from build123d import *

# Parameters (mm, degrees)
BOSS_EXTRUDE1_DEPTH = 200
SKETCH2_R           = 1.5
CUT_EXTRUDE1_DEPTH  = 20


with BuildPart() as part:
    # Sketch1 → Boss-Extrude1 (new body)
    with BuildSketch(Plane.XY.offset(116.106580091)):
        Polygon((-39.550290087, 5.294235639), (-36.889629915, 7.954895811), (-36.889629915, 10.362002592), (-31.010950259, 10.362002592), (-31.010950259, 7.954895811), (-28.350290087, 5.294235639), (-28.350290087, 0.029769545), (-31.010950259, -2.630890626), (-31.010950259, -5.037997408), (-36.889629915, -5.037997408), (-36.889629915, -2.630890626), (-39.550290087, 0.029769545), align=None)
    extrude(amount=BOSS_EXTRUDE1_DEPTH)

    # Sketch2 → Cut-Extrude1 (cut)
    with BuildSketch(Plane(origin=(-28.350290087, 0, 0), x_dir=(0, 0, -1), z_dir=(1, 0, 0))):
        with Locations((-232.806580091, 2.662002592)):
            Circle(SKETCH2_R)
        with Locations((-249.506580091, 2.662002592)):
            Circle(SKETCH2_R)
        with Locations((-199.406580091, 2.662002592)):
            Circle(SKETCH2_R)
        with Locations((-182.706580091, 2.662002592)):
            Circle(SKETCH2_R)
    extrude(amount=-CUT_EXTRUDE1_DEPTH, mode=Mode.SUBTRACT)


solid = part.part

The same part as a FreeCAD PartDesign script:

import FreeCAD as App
import Part
import Sketcher

V = App.Vector

doc = App.newDocument("Part")
body = doc.addObject("PartDesign::Body", "Body")

# Sketch on XY plane
sketch1 = body.newObject("Sketcher::SketchObject", "Sketch")
sketch1.AttachmentSupport = (doc.getObject("XY_Plane"), [""])
sketch1.MapMode = "FlatFace"
sketch1.AttachmentOffset = App.Placement(V(0, 0, 116.10658), App.Rotation())
sketch1.addGeometry(Part.LineSegment(V(-36.9, 8, 0), V(-39.6, 5.3, 0)), False)
sketch1.addGeometry(Part.LineSegment(V(-39.6, 5.3, 0), V(-39.6, 0, 0)), False)
sketch1.addGeometry(Part.LineSegment(V(-39.6, 0, 0), V(-36.9, -2.6, 0)), False)
sketch1.addGeometry(Part.LineSegment(V(-36.9, -2.6, 0), V(-36.9, -5, 0)), False)
sketch1.addGeometry(Part.LineSegment(V(-36.9, -5, 0), V(-31, -5, 0)), False)
sketch1.addGeometry(Part.LineSegment(V(-31, -5, 0), V(-31, -2.6, 0)), False)
sketch1.addGeometry(Part.LineSegment(V(-31, -2.6, 0), V(-28.4, 0, 0)), False)
sketch1.addGeometry(Part.LineSegment(V(-28.4, 0, 0), V(-28.4, 5.3, 0)), False)
sketch1.addGeometry(Part.LineSegment(V(-28.4, 5.3, 0), V(-31, 8, 0)), False)
sketch1.addGeometry(Part.LineSegment(V(-31, 8, 0), V(-31, 10.4, 0)), False)
sketch1.addGeometry(Part.LineSegment(V(-31, 10.4, 0), V(-36.9, 10.4, 0)), False)
sketch1.addGeometry(Part.LineSegment(V(-36.9, 10.4, 0), V(-36.9, 8, 0)), False)
sketch1.addConstraint(Sketcher.Constraint("Coincident", 0, 2, 1, 1))
sketch1.addConstraint(Sketcher.Constraint("Coincident", 1, 2, 2, 1))
sketch1.addConstraint(Sketcher.Constraint("Coincident", 2, 2, 3, 1))
sketch1.addConstraint(Sketcher.Constraint("Coincident", 3, 2, 4, 1))
sketch1.addConstraint(Sketcher.Constraint("Coincident", 4, 2, 5, 1))
sketch1.addConstraint(Sketcher.Constraint("Coincident", 5, 2, 6, 1))
sketch1.addConstraint(Sketcher.Constraint("Coincident", 6, 2, 7, 1))
sketch1.addConstraint(Sketcher.Constraint("Coincident", 7, 2, 8, 1))
sketch1.addConstraint(Sketcher.Constraint("Coincident", 8, 2, 9, 1))
sketch1.addConstraint(Sketcher.Constraint("Coincident", 9, 2, 10, 1))
sketch1.addConstraint(Sketcher.Constraint("Coincident", 10, 2, 11, 1))
sketch1.addConstraint(Sketcher.Constraint("Coincident", 11, 2, 0, 1))
sketch1.addConstraint(Sketcher.Constraint("Vertical", 1))
sketch1.addConstraint(Sketcher.Constraint("Vertical", 3))
sketch1.addConstraint(Sketcher.Constraint("Horizontal", 4))
sketch1.addConstraint(Sketcher.Constraint("Vertical", 5))
sketch1.addConstraint(Sketcher.Constraint("Vertical", 7))
sketch1.addConstraint(Sketcher.Constraint("Vertical", 9))
sketch1.addConstraint(Sketcher.Constraint("Horizontal", 10))
sketch1.addConstraint(Sketcher.Constraint("Vertical", 11))
sketch1.addConstraint(Sketcher.Constraint("Perpendicular", 0, 2))
sketch1.addConstraint(Sketcher.Constraint("Perpendicular", 2, 6))
sketch1.addConstraint(Sketcher.Constraint("Perpendicular", 6, 8))
sketch1.addConstraint(Sketcher.Constraint("Horizontal", 2, 2, 5, 2))
sketch1.addConstraint(Sketcher.Constraint("Horizontal", 1, 2, 6, 2))
sketch1.addConstraint(Sketcher.Constraint("Horizontal", 0, 2, 7, 2))
sketch1.addConstraint(Sketcher.Constraint("Horizontal", 8, 2, 11, 2))
sketch1.addConstraint(Sketcher.Constraint("Vertical", 5, 2, 8, 2))
sketch1.addConstraint(Sketcher.Constraint("Vertical", 3, 2, 10, 2))
sketch1.addConstraint(Sketcher.Constraint("Equal", 5, 9))
sketch1.addConstraint(Sketcher.Constraint("DistanceX", 1, 2, 6, 2, 11.2))
sketch1.addConstraint(Sketcher.Constraint("DistanceX", 4, 1, 4, 2, 5.87868))
sketch1.addConstraint(Sketcher.Constraint("DistanceY", 1, 2, 1, 1, 5.264466))
sketch1.addConstraint(Sketcher.Constraint("DistanceY", 3, 2, 3, 1, 2.407107))
sketch1.addConstraint(Sketcher.Constraint("DistanceX", 0, 2, -1, 1, 39.55029))
sketch1.addConstraint(Sketcher.Constraint("DistanceY", -1, 1, 1, 2, 0.02977))
pad1 = body.newObject("PartDesign::Pad", "Pad")
pad1.Profile = sketch1
pad1.Length = 200

# Sketch on YZ plane
sketch2 = body.newObject("Sketcher::SketchObject", "Sketch001")
sketch2.AttachmentSupport = (doc.getObject("YZ_Plane"), [""])
sketch2.MapMode = "FlatFace"
sketch2.AttachmentOffset = App.Placement(V(0, 0, -28.35029), App.Rotation())
sketch2.addGeometry(Part.Circle(V(2.7, 232.8, 0), V(0, 0, 1), 1.5), False)
sketch2.addGeometry(Part.Circle(V(2.7, 249.5, 0), V(0, 0, 1), 1.5), False)
sketch2.addGeometry(Part.Circle(V(2.7, 199.4, 0), V(0, 0, 1), 1.5), False)
sketch2.addGeometry(Part.Circle(V(2.7, 182.7, 0), V(0, 0, 1), 1.5), False)
sketch2.addConstraint(Sketcher.Constraint("Equal", 0, 1))
sketch2.addConstraint(Sketcher.Constraint("Equal", 1, 2))
sketch2.addConstraint(Sketcher.Constraint("Equal", 2, 3))
sketch2.addConstraint(Sketcher.Constraint("Vertical", 0, 3, 1, 3))
sketch2.addConstraint(Sketcher.Constraint("Vertical", 1, 3, 2, 3))
sketch2.addConstraint(Sketcher.Constraint("Vertical", 2, 3, 3, 3))
sketch2.addConstraint(Sketcher.Constraint("Diameter", 0, 3.0))
sketch2.addConstraint(Sketcher.Constraint("DistanceY", 0, 3, 1, 3, 16.7))
sketch2.addConstraint(Sketcher.Constraint("DistanceY", 2, 3, 0, 3, 33.4))
sketch2.addConstraint(Sketcher.Constraint("DistanceY", 3, 3, 2, 3, 16.7))
sketch2.addConstraint(Sketcher.Constraint("DistanceY", -1, 1, 0, 3, 232.80658))
sketch2.addConstraint(Sketcher.Constraint("DistanceX", -1, 1, 0, 3, 2.662003))
pocket1 = body.newObject("PartDesign::Pocket", "Pocket")
pocket1.Profile = sketch2
pocket1.Length = 20

doc.recompute()
